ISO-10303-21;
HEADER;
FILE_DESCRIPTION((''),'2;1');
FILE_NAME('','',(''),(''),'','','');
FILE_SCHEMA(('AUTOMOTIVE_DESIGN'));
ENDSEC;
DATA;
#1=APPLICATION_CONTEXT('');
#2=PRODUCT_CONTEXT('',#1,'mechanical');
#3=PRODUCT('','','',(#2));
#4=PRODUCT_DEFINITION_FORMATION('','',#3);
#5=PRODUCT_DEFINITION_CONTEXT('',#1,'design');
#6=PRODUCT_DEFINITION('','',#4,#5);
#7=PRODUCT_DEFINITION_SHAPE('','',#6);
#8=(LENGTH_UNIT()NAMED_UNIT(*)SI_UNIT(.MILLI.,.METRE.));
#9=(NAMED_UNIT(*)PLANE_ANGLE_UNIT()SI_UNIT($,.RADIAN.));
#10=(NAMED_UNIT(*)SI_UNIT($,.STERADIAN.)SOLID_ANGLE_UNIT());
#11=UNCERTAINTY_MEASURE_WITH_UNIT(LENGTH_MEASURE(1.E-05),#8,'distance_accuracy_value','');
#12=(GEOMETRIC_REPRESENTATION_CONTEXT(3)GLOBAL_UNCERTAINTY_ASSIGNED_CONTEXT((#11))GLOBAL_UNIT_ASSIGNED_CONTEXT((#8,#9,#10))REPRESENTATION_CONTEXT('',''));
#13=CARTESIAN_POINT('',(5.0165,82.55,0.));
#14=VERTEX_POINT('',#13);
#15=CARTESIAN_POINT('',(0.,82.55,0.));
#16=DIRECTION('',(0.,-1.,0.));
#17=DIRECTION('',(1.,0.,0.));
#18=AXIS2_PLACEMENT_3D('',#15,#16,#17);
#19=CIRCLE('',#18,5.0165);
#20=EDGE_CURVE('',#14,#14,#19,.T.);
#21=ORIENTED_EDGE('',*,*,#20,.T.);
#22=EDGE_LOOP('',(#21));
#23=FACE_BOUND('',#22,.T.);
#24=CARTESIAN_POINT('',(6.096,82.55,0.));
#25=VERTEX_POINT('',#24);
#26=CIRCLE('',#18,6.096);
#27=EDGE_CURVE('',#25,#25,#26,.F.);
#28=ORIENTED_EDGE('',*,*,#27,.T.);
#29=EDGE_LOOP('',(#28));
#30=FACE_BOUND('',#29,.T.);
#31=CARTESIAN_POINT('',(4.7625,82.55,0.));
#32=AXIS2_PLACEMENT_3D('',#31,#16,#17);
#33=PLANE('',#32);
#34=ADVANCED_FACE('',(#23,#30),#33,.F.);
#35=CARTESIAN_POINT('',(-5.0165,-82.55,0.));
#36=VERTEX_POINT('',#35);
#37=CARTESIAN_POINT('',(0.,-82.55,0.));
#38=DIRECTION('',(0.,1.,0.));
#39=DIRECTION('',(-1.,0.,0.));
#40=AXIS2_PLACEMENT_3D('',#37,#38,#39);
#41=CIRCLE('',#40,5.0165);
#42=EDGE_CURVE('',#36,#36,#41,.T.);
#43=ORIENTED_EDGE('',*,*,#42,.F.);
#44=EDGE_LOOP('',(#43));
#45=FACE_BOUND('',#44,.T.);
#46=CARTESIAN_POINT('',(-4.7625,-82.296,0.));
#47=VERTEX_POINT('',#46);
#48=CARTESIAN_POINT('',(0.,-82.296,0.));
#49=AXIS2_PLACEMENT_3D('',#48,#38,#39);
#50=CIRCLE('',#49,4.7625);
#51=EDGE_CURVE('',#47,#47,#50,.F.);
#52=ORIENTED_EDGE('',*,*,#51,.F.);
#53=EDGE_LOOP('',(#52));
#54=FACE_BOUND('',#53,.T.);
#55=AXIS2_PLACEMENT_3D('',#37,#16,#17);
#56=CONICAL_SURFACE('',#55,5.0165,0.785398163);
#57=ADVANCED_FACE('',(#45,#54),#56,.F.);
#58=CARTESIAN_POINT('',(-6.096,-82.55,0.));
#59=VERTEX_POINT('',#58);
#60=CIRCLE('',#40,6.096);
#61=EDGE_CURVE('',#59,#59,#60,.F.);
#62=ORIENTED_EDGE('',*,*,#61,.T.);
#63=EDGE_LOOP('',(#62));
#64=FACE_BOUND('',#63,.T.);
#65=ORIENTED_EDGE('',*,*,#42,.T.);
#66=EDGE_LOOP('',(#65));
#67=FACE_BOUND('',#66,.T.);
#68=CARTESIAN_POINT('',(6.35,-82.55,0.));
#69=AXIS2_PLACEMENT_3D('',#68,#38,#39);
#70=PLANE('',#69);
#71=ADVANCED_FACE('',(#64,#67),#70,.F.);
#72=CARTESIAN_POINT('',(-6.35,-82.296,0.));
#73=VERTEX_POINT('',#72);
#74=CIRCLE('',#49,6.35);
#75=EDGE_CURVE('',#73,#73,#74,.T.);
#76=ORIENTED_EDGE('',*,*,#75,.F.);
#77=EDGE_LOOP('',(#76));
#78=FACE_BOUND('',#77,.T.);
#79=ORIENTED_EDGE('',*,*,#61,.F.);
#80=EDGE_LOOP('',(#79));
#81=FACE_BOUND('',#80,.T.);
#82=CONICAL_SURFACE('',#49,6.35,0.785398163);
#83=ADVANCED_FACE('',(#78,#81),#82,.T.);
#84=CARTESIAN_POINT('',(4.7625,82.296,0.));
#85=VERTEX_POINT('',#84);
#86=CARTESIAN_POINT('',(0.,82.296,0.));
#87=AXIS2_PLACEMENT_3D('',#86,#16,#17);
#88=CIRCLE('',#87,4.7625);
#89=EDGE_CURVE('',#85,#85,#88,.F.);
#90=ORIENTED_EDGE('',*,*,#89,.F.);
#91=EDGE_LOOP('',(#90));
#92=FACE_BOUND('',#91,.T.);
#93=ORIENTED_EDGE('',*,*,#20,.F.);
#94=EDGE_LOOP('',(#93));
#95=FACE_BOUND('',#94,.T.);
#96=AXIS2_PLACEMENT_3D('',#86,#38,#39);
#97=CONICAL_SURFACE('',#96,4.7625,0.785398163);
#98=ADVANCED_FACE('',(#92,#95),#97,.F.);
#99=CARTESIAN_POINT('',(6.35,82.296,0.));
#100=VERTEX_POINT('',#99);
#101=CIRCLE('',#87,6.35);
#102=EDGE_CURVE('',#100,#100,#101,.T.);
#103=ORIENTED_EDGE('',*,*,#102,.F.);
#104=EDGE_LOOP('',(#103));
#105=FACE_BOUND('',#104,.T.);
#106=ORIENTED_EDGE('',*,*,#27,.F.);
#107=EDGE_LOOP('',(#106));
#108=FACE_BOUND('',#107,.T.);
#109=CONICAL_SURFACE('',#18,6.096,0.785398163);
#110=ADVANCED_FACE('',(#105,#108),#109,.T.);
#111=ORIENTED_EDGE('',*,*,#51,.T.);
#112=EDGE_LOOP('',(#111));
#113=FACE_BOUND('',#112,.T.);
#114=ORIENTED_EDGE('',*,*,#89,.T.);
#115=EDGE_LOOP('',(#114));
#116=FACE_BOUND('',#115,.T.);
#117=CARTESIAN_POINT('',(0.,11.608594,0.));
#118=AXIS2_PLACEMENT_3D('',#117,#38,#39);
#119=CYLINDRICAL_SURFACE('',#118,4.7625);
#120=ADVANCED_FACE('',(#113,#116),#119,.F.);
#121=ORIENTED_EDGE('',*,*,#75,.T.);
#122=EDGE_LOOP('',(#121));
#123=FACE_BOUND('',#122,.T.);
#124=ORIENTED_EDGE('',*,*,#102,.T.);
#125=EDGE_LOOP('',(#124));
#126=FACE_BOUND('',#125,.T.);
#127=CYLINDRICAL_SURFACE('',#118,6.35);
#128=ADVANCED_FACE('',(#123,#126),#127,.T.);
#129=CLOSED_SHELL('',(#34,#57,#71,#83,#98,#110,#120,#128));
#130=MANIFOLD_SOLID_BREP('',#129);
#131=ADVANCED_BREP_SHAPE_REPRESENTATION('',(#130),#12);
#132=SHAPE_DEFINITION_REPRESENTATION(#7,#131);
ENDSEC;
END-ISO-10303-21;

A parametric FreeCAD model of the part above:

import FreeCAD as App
import Part
import Sketcher
Q = App.Units.Quantity


def edges_at(feature, points):
    """Names of the edges that pass closest to the given points."""
    edges = feature.Shape.Edges
    near = lambda p: min(range(len(edges)), key=lambda i: edges[i].distToShape(Part.Vertex(*p))[0])
    return sorted({f"Edge{near(p) + 1}" for p in points})

doc = App.newDocument("Part")
body = doc.addObject("PartDesign::Body", "Body")

# Sketch on XY plane
sketch1 = doc.addObject("Sketcher::SketchObject", "Sketch")
body.addObject(sketch1)
sketch1.AttachmentSupport = (doc.XY_Plane, [""])
sketch1.MapMode = "FlatFace"
sketch1.addGeometry(Part.LineSegment(App.Vector(4.8, 82.5, 0), App.Vector(4.8, -82.5, 0)), False)
sketch1.addGeometry(Part.LineSegment(App.Vector(4.8, -82.5, 0), App.Vector(6.3, -82.5, 0)), False)
sketch1.addGeometry(Part.LineSegment(App.Vector(6.3, -82.5, 0), App.Vector(6.3, 82.5, 0)), False)
sketch1.addGeometry(Part.LineSegment(App.Vector(6.3, 82.5, 0), App.Vector(4.8, 82.5, 0)), False)
sketch1.addConstraint(Sketcher.Constraint("Coincident", 0, 2, 1, 1))
sketch1.addConstraint(Sketcher.Constraint("Coincident", 1, 2, 2, 1))
sketch1.addConstraint(Sketcher.Constraint("Coincident", 2, 2, 3, 1))
sketch1.addConstraint(Sketcher.Constraint("Coincident", 3, 2, 0, 1))
sketch1.addConstraint(Sketcher.Constraint("Vertical", 0))
sketch1.addConstraint(Sketcher.Constraint("Horizontal", 1))
sketch1.addConstraint(Sketcher.Constraint("Vertical", 2))
sketch1.addConstraint(Sketcher.Constraint("Horizontal", 3))
sketch1.addConstraint(Sketcher.Constraint("DistanceY", 0, 2, 0, 1, Q("6.5 in")))
sketch1.addConstraint(Sketcher.Constraint("DistanceX", 1, 1, 1, 2, Q("0.0625 in")))
sketch1.addConstraint(Sketcher.Constraint("DistanceY", 0, 2, -1, 1, Q("3.25 in")))
sketch1.addConstraint(Sketcher.Constraint("DistanceX", -1, 1, 1, 2, Q("0.25 in")))
revolution = doc.addObject("PartDesign::Revolution", "Revolution")
body.addObject(revolution)
revolution.Profile = sketch1
revolution.ReferenceAxis = (sketch1, ["V_Axis"])
revolution.Angle = 360
doc.recompute()

chamfer = doc.addObject("PartDesign::Chamfer", "Chamfer")
body.addObject(chamfer)
chamfer.Base = (revolution, edges_at(revolution, [
    (-4.763, -82.55, 0),
    (-6.35, -82.55, 0),
    (-6.35, 82.55, 0),
    (-4.763, 82.55, 0),
]))
chamfer.Size = Q("0.01 in")

doc.recompute()
